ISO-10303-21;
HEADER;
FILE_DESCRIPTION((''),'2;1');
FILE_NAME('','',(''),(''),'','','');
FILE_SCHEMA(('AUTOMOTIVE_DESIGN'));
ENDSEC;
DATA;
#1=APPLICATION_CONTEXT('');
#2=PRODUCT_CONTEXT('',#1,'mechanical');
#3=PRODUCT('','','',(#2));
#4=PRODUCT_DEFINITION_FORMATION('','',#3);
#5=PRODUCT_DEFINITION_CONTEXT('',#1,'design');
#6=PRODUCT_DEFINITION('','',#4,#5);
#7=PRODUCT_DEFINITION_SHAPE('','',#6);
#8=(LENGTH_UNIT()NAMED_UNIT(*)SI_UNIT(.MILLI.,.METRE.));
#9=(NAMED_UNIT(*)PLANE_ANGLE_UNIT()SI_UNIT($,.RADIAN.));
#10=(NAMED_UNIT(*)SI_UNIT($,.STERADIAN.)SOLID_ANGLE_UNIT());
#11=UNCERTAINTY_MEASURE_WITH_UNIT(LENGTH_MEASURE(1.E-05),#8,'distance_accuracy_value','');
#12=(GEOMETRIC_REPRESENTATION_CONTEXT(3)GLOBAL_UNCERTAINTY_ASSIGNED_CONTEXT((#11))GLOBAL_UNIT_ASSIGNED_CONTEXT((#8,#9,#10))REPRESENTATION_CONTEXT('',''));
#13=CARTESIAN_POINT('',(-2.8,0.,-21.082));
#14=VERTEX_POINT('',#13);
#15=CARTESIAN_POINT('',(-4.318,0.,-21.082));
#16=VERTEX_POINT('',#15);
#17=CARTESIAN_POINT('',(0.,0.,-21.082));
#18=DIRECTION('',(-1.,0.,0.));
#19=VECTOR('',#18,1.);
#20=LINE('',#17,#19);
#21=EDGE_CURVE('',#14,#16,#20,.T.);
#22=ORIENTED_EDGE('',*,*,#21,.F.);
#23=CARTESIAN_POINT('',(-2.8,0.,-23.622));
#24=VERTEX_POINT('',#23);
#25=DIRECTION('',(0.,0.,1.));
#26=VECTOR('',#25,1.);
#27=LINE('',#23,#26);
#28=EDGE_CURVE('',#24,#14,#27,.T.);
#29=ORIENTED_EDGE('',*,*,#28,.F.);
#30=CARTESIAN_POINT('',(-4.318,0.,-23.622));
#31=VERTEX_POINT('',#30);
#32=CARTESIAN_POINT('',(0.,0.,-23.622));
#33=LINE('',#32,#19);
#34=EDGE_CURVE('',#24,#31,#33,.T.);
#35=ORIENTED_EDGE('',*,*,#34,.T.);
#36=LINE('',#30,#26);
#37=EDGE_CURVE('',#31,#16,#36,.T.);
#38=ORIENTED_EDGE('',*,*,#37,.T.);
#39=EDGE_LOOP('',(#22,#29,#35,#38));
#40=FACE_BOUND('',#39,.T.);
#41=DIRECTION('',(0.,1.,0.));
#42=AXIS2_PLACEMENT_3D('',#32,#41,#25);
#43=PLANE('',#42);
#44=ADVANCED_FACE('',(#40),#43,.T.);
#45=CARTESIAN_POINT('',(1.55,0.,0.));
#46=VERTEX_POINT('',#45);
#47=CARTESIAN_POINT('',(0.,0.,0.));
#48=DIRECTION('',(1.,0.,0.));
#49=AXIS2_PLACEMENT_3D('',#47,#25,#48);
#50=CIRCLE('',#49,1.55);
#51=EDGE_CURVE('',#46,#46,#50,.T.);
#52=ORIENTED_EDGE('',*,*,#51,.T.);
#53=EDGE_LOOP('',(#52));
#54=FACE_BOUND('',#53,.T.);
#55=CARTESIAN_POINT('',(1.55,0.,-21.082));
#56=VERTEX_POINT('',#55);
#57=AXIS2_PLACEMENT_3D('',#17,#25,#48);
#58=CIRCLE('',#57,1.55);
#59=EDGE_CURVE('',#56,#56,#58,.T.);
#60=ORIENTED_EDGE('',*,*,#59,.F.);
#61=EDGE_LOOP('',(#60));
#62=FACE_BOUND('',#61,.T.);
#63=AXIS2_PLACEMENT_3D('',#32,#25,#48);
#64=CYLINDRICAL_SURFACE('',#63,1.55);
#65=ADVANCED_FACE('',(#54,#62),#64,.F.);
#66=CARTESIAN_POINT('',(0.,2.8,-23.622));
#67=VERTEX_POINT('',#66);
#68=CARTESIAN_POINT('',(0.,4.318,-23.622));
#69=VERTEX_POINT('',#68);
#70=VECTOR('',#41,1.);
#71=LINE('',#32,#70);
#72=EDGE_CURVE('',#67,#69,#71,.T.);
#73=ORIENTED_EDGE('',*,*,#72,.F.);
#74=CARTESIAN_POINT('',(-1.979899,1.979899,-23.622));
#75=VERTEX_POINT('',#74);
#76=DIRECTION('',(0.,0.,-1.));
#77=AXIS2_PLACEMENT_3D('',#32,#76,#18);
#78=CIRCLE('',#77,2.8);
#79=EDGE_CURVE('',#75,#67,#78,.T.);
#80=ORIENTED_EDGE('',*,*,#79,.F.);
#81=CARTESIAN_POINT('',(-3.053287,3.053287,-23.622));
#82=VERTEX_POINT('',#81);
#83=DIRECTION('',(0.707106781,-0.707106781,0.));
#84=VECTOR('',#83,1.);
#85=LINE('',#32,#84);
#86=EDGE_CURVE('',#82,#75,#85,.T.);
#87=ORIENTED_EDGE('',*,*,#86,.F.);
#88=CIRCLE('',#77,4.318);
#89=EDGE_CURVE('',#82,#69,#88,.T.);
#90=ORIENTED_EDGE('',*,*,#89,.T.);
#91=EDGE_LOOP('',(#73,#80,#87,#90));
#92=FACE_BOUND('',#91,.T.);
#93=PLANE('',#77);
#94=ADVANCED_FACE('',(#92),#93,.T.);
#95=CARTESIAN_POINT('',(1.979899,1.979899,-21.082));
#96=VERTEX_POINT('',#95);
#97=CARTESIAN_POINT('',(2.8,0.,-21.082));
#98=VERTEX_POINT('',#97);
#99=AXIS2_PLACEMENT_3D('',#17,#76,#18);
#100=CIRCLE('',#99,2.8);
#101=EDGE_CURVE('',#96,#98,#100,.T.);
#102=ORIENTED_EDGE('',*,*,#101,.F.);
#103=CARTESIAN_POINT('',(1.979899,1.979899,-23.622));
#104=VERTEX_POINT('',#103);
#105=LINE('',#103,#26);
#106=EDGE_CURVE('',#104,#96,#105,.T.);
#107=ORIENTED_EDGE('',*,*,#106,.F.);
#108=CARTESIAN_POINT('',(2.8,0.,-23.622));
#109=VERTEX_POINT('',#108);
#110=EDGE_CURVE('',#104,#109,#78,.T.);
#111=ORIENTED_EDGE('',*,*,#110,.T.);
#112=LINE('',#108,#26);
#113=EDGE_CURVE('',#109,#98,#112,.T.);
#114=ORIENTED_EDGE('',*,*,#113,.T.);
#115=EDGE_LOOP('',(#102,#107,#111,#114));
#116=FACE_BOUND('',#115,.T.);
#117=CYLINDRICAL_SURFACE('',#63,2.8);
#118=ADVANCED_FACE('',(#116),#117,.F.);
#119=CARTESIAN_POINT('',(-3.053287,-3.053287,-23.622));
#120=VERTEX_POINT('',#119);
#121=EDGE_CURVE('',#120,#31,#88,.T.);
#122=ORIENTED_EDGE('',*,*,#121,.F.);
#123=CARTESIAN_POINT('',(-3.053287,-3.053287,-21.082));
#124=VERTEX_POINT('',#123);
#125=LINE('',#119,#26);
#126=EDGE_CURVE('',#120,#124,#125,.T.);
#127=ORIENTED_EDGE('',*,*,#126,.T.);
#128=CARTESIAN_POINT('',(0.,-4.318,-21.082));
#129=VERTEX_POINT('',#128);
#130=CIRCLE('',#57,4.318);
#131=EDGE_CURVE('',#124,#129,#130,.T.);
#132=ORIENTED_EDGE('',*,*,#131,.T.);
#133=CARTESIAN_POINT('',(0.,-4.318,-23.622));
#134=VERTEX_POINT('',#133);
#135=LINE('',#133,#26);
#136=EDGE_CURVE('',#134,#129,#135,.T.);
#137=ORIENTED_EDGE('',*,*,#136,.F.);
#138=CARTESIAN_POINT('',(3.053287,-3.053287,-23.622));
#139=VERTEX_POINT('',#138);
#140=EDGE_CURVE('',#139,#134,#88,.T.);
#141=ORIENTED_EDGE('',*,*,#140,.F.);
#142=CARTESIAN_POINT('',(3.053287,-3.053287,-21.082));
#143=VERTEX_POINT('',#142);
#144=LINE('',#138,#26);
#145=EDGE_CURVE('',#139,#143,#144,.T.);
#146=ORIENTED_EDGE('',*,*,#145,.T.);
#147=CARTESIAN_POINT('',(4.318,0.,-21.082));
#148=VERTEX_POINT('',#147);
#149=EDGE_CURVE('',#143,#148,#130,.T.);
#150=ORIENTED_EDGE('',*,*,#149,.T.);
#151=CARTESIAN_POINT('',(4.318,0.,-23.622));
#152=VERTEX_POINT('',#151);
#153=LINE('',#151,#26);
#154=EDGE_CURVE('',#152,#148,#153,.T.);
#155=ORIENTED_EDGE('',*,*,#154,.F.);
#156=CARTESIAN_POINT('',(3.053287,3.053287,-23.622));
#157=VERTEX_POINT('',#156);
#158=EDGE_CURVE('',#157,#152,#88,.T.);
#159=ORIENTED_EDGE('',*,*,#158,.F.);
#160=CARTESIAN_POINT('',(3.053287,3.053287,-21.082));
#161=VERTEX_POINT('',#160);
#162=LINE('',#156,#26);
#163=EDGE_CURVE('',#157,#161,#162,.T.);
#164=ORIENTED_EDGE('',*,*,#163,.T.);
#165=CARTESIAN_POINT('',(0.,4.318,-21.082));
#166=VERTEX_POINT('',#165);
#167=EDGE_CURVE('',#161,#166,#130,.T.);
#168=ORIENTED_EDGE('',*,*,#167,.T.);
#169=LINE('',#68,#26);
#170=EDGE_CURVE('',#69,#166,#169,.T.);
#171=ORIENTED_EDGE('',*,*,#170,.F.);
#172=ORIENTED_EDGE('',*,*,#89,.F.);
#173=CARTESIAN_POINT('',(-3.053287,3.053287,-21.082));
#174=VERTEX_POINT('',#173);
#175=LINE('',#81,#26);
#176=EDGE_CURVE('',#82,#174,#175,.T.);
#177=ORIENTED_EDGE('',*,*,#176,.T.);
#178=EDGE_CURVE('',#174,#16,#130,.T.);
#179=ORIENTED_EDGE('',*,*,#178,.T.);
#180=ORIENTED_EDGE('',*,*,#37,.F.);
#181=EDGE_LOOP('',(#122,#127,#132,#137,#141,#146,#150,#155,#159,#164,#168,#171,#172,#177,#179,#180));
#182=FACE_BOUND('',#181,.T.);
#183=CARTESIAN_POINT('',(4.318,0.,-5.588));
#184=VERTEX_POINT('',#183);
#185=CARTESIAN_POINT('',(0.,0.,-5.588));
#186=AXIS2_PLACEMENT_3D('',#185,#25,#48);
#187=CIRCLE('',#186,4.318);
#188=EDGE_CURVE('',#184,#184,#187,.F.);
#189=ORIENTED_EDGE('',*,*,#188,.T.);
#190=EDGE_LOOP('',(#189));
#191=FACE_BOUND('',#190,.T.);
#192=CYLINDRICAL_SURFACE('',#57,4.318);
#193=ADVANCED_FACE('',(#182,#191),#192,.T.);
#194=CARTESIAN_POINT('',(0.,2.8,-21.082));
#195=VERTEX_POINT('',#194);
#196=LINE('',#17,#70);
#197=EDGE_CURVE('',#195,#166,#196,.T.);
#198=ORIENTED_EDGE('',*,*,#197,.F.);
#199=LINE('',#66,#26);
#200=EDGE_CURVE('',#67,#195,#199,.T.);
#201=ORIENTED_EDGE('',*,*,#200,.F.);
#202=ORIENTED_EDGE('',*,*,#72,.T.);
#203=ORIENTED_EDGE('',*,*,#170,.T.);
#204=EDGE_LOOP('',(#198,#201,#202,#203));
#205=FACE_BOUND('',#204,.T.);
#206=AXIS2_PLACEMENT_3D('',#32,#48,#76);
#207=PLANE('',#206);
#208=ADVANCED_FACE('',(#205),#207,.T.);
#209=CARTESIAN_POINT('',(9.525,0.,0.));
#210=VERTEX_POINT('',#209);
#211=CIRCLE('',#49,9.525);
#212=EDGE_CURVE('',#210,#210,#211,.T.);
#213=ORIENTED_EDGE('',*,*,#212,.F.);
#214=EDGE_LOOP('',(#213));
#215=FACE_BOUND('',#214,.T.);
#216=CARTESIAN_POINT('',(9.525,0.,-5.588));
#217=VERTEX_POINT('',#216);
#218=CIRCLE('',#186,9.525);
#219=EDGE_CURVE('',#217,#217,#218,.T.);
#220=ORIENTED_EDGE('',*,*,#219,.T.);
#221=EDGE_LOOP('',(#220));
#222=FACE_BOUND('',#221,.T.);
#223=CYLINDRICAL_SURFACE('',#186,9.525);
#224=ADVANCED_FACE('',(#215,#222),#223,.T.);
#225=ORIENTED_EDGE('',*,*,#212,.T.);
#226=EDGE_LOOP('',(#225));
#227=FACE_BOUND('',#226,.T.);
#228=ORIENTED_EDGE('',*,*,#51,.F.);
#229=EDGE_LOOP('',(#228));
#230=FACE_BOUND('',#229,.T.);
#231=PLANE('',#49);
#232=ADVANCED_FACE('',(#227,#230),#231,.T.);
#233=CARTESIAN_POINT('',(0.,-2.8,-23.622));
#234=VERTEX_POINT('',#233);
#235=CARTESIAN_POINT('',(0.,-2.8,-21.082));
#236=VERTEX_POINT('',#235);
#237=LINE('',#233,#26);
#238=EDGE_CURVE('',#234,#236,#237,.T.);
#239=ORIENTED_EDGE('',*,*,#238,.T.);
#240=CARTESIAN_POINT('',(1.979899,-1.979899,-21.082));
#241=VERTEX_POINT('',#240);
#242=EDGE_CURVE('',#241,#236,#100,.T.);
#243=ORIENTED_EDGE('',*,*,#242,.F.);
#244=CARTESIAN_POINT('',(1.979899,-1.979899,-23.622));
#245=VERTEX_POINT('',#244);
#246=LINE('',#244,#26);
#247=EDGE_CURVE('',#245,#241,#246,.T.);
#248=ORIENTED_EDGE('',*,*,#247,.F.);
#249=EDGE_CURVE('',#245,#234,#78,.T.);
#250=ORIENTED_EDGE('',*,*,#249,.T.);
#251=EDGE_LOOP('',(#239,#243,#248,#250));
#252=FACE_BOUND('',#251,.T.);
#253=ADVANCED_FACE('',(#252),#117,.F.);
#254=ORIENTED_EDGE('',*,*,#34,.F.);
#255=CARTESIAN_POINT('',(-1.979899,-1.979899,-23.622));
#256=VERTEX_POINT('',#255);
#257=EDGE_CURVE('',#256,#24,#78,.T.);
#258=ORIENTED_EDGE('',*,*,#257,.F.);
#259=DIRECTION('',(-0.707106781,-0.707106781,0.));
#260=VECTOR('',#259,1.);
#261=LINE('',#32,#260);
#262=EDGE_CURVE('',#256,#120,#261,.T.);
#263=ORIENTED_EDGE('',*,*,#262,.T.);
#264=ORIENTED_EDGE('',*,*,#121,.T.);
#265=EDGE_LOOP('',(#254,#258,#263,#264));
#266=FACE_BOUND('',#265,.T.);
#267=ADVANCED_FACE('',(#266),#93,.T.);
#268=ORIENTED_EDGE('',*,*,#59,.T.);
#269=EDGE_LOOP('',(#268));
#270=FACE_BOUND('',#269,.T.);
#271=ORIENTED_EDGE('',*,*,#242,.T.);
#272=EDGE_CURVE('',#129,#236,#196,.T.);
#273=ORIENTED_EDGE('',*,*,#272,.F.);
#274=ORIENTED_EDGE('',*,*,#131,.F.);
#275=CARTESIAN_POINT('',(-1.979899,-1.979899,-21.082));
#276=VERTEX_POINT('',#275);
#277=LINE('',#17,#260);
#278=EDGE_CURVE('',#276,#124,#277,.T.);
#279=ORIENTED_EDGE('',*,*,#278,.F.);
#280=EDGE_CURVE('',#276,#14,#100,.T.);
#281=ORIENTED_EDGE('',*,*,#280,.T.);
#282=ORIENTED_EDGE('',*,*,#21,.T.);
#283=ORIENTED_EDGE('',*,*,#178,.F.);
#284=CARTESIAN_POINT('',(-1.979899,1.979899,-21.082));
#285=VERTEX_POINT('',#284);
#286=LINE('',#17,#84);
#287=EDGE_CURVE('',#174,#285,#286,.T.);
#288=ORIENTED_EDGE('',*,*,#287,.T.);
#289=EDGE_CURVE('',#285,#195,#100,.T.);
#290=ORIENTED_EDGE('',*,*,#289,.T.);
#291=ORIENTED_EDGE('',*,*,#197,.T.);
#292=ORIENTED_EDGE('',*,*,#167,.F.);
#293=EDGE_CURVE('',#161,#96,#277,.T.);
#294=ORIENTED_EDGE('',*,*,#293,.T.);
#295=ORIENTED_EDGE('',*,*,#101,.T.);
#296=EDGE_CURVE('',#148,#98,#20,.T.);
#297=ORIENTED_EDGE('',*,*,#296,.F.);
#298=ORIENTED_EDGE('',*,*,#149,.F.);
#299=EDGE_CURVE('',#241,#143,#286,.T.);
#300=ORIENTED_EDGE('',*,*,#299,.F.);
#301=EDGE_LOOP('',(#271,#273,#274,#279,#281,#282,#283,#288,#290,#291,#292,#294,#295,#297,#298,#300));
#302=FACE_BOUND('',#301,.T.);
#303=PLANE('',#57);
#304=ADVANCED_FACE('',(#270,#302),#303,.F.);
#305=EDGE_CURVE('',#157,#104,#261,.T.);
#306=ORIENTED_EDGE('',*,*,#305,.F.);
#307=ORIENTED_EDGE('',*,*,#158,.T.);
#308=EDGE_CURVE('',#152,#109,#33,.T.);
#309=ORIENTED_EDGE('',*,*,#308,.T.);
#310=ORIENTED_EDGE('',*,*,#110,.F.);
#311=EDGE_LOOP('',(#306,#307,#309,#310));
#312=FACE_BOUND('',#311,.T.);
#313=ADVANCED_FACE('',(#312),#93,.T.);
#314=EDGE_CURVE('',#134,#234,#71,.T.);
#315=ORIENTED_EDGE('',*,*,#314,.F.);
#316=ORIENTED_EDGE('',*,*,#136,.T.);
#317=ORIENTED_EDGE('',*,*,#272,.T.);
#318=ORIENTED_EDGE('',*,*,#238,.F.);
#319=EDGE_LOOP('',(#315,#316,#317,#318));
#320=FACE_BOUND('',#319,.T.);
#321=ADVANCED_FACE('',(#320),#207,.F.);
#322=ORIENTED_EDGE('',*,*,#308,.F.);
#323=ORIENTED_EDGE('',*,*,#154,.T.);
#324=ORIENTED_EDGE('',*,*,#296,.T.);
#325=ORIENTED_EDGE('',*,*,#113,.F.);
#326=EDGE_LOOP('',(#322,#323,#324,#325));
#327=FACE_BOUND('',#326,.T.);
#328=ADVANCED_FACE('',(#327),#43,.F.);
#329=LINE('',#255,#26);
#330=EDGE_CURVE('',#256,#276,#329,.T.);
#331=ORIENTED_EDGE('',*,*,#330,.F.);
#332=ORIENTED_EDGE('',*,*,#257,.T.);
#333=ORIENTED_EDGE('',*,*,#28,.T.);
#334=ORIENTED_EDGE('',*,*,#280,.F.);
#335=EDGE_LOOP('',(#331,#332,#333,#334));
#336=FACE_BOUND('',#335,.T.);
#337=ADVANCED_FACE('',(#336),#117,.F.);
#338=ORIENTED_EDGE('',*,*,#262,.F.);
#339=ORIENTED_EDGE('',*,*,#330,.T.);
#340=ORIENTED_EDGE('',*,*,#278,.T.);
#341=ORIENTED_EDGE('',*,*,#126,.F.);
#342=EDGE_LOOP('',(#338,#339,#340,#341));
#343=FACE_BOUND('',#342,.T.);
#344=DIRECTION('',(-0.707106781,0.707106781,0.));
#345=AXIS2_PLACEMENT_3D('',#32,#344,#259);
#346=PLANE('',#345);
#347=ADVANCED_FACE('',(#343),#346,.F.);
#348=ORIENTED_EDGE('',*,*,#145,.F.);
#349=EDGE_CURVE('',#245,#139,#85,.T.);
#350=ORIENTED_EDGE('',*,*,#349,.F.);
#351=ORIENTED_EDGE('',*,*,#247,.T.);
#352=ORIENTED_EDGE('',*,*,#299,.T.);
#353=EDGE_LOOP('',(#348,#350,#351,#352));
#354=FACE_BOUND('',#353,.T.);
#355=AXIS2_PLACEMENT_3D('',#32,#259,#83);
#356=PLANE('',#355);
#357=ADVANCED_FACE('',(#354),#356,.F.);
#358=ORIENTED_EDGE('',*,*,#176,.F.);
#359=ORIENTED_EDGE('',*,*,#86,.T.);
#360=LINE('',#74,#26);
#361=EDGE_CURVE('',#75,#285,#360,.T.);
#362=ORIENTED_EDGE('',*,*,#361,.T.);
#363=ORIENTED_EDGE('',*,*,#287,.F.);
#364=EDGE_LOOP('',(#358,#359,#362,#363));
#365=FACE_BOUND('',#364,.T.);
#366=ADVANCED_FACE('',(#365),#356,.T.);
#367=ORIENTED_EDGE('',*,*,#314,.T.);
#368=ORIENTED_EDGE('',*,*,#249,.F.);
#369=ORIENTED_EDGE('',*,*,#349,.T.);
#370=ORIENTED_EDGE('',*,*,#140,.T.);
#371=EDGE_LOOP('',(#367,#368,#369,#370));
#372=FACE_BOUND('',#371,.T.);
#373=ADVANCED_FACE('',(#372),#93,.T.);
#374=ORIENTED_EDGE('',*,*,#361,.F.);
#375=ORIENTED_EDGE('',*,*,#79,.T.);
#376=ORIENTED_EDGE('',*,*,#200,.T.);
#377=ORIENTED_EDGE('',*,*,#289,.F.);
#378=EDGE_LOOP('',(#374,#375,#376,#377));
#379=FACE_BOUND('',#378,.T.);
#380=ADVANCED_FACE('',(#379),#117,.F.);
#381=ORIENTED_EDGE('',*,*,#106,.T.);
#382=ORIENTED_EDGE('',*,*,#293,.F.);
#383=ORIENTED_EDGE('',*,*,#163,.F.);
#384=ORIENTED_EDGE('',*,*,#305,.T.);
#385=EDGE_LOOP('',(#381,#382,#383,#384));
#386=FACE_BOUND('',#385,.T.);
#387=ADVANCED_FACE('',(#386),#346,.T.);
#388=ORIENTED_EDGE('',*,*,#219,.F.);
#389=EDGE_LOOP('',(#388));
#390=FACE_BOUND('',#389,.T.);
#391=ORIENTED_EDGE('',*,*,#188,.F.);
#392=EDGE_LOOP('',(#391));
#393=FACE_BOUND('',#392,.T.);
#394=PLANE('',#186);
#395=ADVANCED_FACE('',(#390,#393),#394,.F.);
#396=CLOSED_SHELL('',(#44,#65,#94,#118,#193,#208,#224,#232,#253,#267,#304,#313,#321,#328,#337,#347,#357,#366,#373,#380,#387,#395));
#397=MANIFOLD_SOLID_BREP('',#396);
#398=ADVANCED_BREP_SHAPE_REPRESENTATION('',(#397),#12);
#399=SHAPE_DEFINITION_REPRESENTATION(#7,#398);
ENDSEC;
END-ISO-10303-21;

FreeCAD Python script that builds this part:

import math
import FreeCAD as App
import Part
import Sketcher

V = App.Vector
Q = App.Units.Quantity

doc = App.newDocument("Part")
body = doc.addObject("PartDesign::Body", "Body")

sketch1 = body.newObject("Sketcher::SketchObject", "Sketch")
sketch1.AttachmentSupport = (doc.getObject("XY_Plane"), [""])
sketch1.MapMode = "FlatFace"
sketch1.addGeometry(Part.Circle(V(0, 0, 0), V(0, 0, 1), 4.3), False)
sketch1.addConstraint([
    Sketcher.Constraint("Coincident", 0, 3, -1, 1),
    Sketcher.Constraint("Diameter", 0, Q("0.34 in")),
])
pad1 = body.newObject("PartDesign::Pad", "Pad")
pad1.Profile = sketch1
pad1.Length = Q("0.83 in")
pad1.Reversed = True

sketch2 = body.newObject("Sketcher::SketchObject", "Sketch001")
sketch2.AttachmentSupport = (doc.getObject("XY_Plane"), [""])
sketch2.MapMode = "FlatFace"
sketch2.addGeometry(Part.Circle(V(0, 0, 0), V(0, 0, 1), 10), False)
sketch2.addConstraint([
    Sketcher.Constraint("Coincident", 0, 3, -1, 1),
    Sketcher.Constraint("Diameter", 0, Q("0.75 in")),
])
pad2 = body.newObject("PartDesign::Pad", "Pad001")
pad2.Profile = sketch2
pad2.Length = Q("0.22 in")
pad2.Reversed = True

sketch3 = body.newObject("Sketcher::SketchObject", "Sketch002")
sketch3.AttachmentSupport = (doc.getObject("XY_Plane"), [""])
sketch3.MapMode = "FlatFace"
sketch3.AttachmentOffset = App.Placement(V(0, 0, -0.83 * 25.4), App.Rotation())
sketch3.addGeometry([
    Part.LineSegment(V(-2, -2, 0), V(-3.1, -3.1, 0)),
    Part.ArcOfCircle(Part.Circle(V(0, 0, 0), V(0, 0, 1), 4.3), math.radians(-180), math.radians(-135)),
    Part.LineSegment(V(-4.3, 0, 0), V(-2.8, 0, 0)),
    Part.ArcOfCircle(Part.Circle(V(0, 0, 0), V(0, 0, 1), 2.8), math.radians(180), math.radians(225)),
    Part.ArcOfCircle(Part.Circle(V(0, 0, 0), V(0, 0, 1), 4.3), math.radians(0), math.radians(45)),
    Part.LineSegment(V(4.3, 0, 0), V(2.8, 0, 0)),
    Part.ArcOfCircle(Part.Circle(V(0, 0, 0), V(0, 0, 1), 2.8), math.radians(0), math.radians(45)),
    Part.LineSegment(V(2, 2, 0), V(3.1, 3.1, 0)),
    Part.ArcOfCircle(Part.Circle(V(0, 0, 0), V(0, 0, 1), 4.3), math.radians(-90), math.radians(-45)),
    Part.LineSegment(V(0, -4.3, 0), V(0, -2.8, 0)),
    Part.ArcOfCircle(Part.Circle(V(0, 0, 0), V(0, 0, 1), 2.8), math.radians(-90), math.radians(-45)),
    Part.LineSegment(V(2, -2, 0), V(3.1, -3.1, 0)),
    Part.LineSegment(V(0, 4.3, 0), V(0, 2.8, 0)),
    Part.ArcOfCircle(Part.Circle(V(0, 0, 0), V(0, 0, 1), 2.8), math.radians(90), math.radians(135)),
    Part.LineSegment(V(-2, 2, 0), V(-3.1, 3.1, 0)),
    Part.ArcOfCircle(Part.Circle(V(0, 0, 0), V(0, 0, 1), 4.3), math.radians(90), math.radians(135)),
], False)
sketch3.addConstraint([
    Sketcher.Constraint("Coincident", 0, 2, 1, 2),
    Sketcher.Constraint("Coincident", 1, 1, 2, 1),
    Sketcher.Constraint("Coincident", 2, 2, 3, 1),
    Sketcher.Constraint("Coincident", 3, 2, 0, 1),
    Sketcher.Constraint("Coincident", 4, 1, 5, 1),
    Sketcher.Constraint("Coincident", 5, 2, 6, 1),
    Sketcher.Constraint("Coincident", 6, 2, 7, 1),
    Sketcher.Constraint("Coincident", 7, 2, 4, 2),
    Sketcher.Constraint("Coincident", 8, 1, 9, 1),
    Sketcher.Constraint("Coincident", 9, 2, 10, 1),
    Sketcher.Constraint("Coincident", 10, 2, 11, 1),
    Sketcher.Constraint("Coincident", 11, 2, 8, 2),
    Sketcher.Constraint("Coincident", 12, 2, 13, 1),
    Sketcher.Constraint("Coincident", 13, 2, 14, 1),
    Sketcher.Constraint("Coincident", 14, 2, 15, 2),
    Sketcher.Constraint("Coincident", 15, 1, 12, 1),
    Sketcher.Constraint("Horizontal", 2),
    Sketcher.Constraint("Horizontal", 5),
    Sketcher.Constraint("Vertical", 9),
    Sketcher.Constraint("Vertical", 12),
    Sketcher.Constraint("Coincident", 1, 3, -1, 1),
    Sketcher.Constraint("Coincident", 3, 3, -1, 1),
    Sketcher.Constraint("Coincident", 4, 3, -1, 1),
    Sketcher.Constraint("Coincident", 6, 3, -1, 1),
    Sketcher.Constraint("Coincident", 8, 3, -1, 1),
    Sketcher.Constraint("Coincident", 10, 3, -1, 1),
    Sketcher.Constraint("Coincident", 13, 3, -1, 1),
    Sketcher.Constraint("Coincident", 15, 3, -1, 1),
    Sketcher.Constraint("Equal", 1, 4),
    Sketcher.Constraint("Equal", 3, 6),
    Sketcher.Constraint("Equal", 4, 8),
    Sketcher.Constraint("Equal", 6, 10),
    Sketcher.Constraint("Equal", 10, 13),
    Sketcher.Constraint("Equal", 8, 15),
    Sketcher.Constraint("PointOnObject", 1, 1, -1),
    Sketcher.Constraint("PointOnObject", 4, 1, -1),
    Sketcher.Constraint("PointOnObject", 8, 1, -2),
    Sketcher.Constraint("PointOnObject", 12, 2, -2),
    Sketcher.Constraint("Parallel", 0, 7),
    Sketcher.Constraint("Perpendicular", 7, 11),
    Sketcher.Constraint("Parallel", 11, 14),
    Sketcher.Constraint("Horizontal", 3, 2, 10, 2),
    Sketcher.Constraint("Horizontal", 0, 2, 11, 2),
    Sketcher.Constraint("Horizontal", 6, 2, 13, 2),
    Sketcher.Constraint("Vertical", 6, 2, 10, 2),
    Sketcher.Constraint("Radius", 1, Q("0.17 in")),
    Sketcher.Constraint("Radius", 3, Q("2.8 mm")),
    Sketcher.Constraint("DistanceX", 3, 2, -1, 1, Q("1.979899 mm")),
])
pad3 = body.newObject("PartDesign::Pad", "Pad002")
pad3.Profile = sketch3
pad3.Length = Q("0.1 in")
pad3.Reversed = True

sketch4 = body.newObject("Sketcher::SketchObject", "Sketch003")
sketch4.AttachmentSupport = (doc.getObject("XY_Plane"), [""])
sketch4.MapMode = "FlatFace"
sketch4.addGeometry(Part.Circle(V(0, 0, 0), V(0, 0, 1), 1.6), False)
sketch4.addConstraint([
    Sketcher.Constraint("Coincident", 0, 3, -1, 1),
    Sketcher.Constraint("Diameter", 0, Q("3.1 mm")),
])
pocket1 = body.newObject("PartDesign::Pocket", "Pocket")
pocket1.Profile = sketch4
pocket1.Type = "ThroughAll"

doc.recompute()
